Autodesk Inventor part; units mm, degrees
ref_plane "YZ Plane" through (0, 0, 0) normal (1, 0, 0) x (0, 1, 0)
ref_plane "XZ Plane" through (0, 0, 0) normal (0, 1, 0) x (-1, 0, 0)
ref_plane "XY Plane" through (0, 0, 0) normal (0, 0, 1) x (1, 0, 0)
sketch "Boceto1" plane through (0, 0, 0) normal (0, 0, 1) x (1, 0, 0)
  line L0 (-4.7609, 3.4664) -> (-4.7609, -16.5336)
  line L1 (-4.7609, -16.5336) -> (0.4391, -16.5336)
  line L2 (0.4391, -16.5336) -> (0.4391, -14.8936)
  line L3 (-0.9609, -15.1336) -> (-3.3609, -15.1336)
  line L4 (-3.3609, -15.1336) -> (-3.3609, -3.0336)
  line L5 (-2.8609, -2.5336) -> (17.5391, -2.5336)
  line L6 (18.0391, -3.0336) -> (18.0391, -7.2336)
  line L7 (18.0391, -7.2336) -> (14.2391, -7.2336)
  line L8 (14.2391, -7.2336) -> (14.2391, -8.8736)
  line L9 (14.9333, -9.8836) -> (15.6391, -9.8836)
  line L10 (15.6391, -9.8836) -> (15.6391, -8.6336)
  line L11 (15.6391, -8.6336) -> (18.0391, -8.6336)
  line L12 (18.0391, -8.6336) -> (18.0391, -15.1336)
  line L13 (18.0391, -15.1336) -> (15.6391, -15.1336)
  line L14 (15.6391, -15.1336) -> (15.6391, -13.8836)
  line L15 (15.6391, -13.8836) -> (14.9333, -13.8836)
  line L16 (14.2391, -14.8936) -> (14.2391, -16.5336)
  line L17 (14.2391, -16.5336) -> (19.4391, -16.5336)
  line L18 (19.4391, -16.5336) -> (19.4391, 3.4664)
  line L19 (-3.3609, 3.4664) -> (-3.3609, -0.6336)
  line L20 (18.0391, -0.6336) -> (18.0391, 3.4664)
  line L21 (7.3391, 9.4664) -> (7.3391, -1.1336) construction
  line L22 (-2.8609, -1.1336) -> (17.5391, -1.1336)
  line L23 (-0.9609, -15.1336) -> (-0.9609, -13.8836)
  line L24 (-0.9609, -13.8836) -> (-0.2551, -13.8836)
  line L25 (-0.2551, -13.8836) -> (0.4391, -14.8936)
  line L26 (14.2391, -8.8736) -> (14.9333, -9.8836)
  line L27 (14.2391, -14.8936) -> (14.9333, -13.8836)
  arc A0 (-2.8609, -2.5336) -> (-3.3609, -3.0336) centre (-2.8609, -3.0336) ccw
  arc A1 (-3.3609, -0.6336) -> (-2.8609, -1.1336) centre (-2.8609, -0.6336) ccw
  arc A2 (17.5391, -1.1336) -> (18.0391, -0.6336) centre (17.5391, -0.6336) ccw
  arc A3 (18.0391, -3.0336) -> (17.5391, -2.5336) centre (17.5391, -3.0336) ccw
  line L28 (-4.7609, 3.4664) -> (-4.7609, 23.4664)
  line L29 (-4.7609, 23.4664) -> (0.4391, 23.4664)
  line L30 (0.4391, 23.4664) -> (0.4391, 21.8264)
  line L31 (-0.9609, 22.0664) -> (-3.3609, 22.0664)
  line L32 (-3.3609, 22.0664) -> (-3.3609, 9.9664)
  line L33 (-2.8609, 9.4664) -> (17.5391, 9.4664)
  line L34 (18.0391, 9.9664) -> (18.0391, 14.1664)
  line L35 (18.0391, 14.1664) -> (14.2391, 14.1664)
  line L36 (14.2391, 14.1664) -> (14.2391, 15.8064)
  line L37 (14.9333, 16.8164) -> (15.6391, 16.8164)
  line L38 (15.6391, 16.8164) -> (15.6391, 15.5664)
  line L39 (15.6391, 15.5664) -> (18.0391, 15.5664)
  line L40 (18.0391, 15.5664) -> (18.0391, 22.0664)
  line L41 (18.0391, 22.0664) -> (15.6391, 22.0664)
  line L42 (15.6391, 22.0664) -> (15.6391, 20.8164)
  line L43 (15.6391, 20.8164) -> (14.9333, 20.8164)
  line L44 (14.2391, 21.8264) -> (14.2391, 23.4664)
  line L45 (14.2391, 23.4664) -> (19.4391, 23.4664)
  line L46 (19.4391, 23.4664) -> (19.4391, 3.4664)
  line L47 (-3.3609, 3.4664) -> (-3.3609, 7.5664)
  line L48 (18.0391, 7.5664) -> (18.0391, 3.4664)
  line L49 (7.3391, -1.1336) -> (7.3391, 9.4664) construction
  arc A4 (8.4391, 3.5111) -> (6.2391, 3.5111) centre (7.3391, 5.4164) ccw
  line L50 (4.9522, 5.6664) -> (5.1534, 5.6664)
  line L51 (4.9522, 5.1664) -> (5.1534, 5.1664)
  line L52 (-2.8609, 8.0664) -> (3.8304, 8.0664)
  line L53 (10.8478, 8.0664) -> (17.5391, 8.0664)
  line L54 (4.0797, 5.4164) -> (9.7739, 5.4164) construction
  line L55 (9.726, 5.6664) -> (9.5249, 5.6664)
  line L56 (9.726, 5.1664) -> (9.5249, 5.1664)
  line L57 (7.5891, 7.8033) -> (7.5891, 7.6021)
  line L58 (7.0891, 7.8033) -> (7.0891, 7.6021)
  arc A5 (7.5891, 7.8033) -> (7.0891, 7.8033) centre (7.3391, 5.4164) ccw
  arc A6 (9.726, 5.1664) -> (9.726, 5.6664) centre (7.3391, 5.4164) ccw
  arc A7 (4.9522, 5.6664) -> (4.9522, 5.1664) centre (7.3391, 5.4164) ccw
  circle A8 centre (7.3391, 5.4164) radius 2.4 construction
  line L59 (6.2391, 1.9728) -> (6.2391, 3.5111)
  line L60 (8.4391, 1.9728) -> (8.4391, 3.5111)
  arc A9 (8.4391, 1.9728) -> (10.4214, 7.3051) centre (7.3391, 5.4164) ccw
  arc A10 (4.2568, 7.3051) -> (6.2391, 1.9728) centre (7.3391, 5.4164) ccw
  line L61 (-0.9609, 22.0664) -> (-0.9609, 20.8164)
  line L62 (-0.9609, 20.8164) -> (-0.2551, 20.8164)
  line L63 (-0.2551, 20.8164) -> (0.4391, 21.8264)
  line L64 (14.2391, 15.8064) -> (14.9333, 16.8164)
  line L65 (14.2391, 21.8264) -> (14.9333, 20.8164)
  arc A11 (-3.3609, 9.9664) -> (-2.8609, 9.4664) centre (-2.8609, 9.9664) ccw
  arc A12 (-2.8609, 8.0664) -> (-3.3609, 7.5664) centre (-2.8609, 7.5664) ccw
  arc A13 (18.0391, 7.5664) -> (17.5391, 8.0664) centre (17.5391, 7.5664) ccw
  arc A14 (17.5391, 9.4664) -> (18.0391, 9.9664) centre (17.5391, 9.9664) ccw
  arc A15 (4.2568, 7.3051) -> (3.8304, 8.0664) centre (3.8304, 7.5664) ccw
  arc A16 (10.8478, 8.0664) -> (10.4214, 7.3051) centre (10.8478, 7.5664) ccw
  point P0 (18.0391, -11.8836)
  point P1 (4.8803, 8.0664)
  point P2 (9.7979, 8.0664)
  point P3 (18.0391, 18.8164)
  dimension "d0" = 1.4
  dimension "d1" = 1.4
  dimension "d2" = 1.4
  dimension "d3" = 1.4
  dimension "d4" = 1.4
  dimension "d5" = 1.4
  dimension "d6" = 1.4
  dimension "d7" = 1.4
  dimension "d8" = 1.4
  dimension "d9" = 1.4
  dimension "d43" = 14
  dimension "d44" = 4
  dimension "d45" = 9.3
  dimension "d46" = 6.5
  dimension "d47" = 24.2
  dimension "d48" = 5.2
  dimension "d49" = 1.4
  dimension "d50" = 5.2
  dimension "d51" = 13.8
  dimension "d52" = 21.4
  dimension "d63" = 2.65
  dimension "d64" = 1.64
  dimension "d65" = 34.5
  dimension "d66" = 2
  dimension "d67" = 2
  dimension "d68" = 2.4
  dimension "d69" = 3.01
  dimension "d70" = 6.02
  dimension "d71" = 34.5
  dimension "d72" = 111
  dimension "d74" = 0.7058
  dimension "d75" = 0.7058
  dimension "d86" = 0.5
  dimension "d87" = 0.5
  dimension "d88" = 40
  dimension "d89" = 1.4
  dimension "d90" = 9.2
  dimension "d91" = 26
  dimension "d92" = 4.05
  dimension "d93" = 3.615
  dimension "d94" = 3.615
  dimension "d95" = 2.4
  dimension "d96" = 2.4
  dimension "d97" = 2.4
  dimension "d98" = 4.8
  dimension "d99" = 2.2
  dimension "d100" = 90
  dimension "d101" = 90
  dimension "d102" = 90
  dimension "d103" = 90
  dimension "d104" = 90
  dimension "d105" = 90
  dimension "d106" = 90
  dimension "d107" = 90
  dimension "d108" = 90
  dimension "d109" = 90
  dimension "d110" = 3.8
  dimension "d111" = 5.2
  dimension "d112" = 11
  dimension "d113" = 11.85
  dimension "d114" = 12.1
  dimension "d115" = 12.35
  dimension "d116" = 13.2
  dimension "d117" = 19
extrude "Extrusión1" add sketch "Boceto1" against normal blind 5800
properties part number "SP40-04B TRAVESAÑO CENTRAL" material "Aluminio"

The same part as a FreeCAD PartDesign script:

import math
import FreeCAD as App
import Part
import Sketcher
from FreeCAD import Vector
Q = App.Units.Quantity

doc = App.newDocument("Part")
body = doc.addObject("PartDesign::Body", "Body")

sketch1 = body.newObject("Sketcher::SketchObject", "Sketch")
sketch1.AttachmentSupport = (doc.getObject("XY_Plane"), [""])
sketch1.MapMode = "FlatFace"
sketch1.addGeometry([
    Part.LineSegment(Vector(-4.7609, 23.4664, 0), Vector(-4.7609, -16.5336, 0)),
    Part.LineSegment(Vector(-4.7609, -16.5336, 0), Vector(0.4391, -16.5336, 0)),
    Part.LineSegment(Vector(0.4391, -16.5336, 0), Vector(0.4391, -14.8936, 0)),
    Part.LineSegment(Vector(0.4391, -14.8936, 0), Vector(-0.2551, -13.8836, 0)),
    Part.LineSegment(Vector(-0.2551, -13.8836, 0), Vector(-0.9609, -13.8836, 0)),
    Part.LineSegment(Vector(-0.9609, -13.8836, 0), Vector(-0.9609, -15.1336, 0)),
    Part.LineSegment(Vector(-0.9609, -15.1336, 0), Vector(-3.3609, -15.1336, 0)),
    Part.LineSegment(Vector(-3.3609, -15.1336, 0), Vector(-3.3609, -3.0336, 0)),
    Part.ArcOfCircle(Part.Circle(Vector(-2.8609, -3.0336, 0), Vector(0, 0, 1), 0.5), math.radians(90), math.radians(180)),
    Part.LineSegment(Vector(-2.8609, -2.5336, 0), Vector(17.5391, -2.5336, 0)),
    Part.ArcOfCircle(Part.Circle(Vector(17.5391, -3.0336, 0), Vector(0, 0, 1), 0.5), math.radians(0), math.radians(90)),
    Part.LineSegment(Vector(18.0391, -3.0336, 0), Vector(18.0391, -7.2336, 0)),
    Part.LineSegment(Vector(18.0391, -7.2336, 0), Vector(14.2391, -7.2336, 0)),
    Part.LineSegment(Vector(14.2391, -7.2336, 0), Vector(14.2391, -8.8736, 0)),
    Part.LineSegment(Vector(14.2391, -8.8736, 0), Vector(14.9333, -9.8836, 0)),
    Part.LineSegment(Vector(14.9333, -9.8836, 0), Vector(15.6391, -9.8836, 0)),
    Part.LineSegment(Vector(15.6391, -9.8836, 0), Vector(15.6391, -8.6336, 0)),
    Part.LineSegment(Vector(15.6391, -8.6336, 0), Vector(18.0391, -8.6336, 0)),
    Part.LineSegment(Vector(18.0391, -8.6336, 0), Vector(18.0391, -15.1336, 0)),
    Part.LineSegment(Vector(18.0391, -15.1336, 0), Vector(15.6391, -15.1336, 0)),
    Part.LineSegment(Vector(15.6391, -15.1336, 0), Vector(15.6391, -13.8836, 0)),
    Part.LineSegment(Vector(15.6391, -13.8836, 0), Vector(14.9333, -13.8836, 0)),
    Part.LineSegment(Vector(14.9333, -13.8836, 0), Vector(14.2391, -14.8936, 0)),
    Part.LineSegment(Vector(14.2391, -14.8936, 0), Vector(14.2391, -16.5336, 0)),
    Part.LineSegment(Vector(14.2391, -16.5336, 0), Vector(19.4391, -16.5336, 0)),
    Part.LineSegment(Vector(19.4391, -16.5336, 0), Vector(19.4391, 23.4664, 0)),
    Part.LineSegment(Vector(19.4391, 23.4664, 0), Vector(14.2391, 23.4664, 0)),
    Part.LineSegment(Vector(14.2391, 23.4664, 0), Vector(14.2391, 21.8264, 0)),
    Part.LineSegment(Vector(14.2391, 21.8264, 0), Vector(14.9333, 20.8164, 0)),
    Part.LineSegment(Vector(14.9333, 20.8164, 0), Vector(15.6391, 20.8164, 0)),
    Part.LineSegment(Vector(15.6391, 20.8164, 0), Vector(15.6391, 22.0664, 0)),
    Part.LineSegment(Vector(15.6391, 22.0664, 0), Vector(18.0391, 22.0664, 0)),
    Part.LineSegment(Vector(18.0391, 22.0664, 0), Vector(18.0391, 15.5664, 0)),
    Part.LineSegment(Vector(18.0391, 15.5664, 0), Vector(15.6391, 15.5664, 0)),
    Part.LineSegment(Vector(15.6391, 15.5664, 0), Vector(15.6391, 16.8164, 0)),
    Part.LineSegment(Vector(15.6391, 16.8164, 0), Vector(14.9333, 16.8164, 0)),
    Part.LineSegment(Vector(14.9333, 16.8164, 0), Vector(14.2391, 15.8064, 0)),
    Part.LineSegment(Vector(14.2391, 15.8064, 0), Vector(14.2391, 14.1664, 0)),
    Part.LineSegment(Vector(14.2391, 14.1664, 0), Vector(18.0391, 14.1664, 0)),
    Part.LineSegment(Vector(18.0391, 14.1664, 0), Vector(18.0391, 9.9664, 0)),
    Part.ArcOfCircle(Part.Circle(Vector(17.5391, 9.9664, 0), Vector(0, 0, 1), 0.5), math.radians(-90), math.radians(0)),
    Part.LineSegment(Vector(17.5391, 9.4664, 0), Vector(-2.8609, 9.4664, 0)),
    Part.ArcOfCircle(Part.Circle(Vector(-2.8609, 9.9664, 0), Vector(0, 0, 1), 0.5), math.radians(180), math.radians(270)),
    Part.LineSegment(Vector(-3.3609, 9.9664, 0), Vector(-3.3609, 22.0664, 0)),
    Part.LineSegment(Vector(-3.3609, 22.0664, 0), Vector(-0.9609, 22.0664, 0)),
    Part.LineSegment(Vector(-0.9609, 22.0664, 0), Vector(-0.9609, 20.8164, 0)),
    Part.LineSegment(Vector(-0.9609, 20.8164, 0), Vector(-0.2551, 20.8164, 0)),
    Part.LineSegment(Vector(-0.2551, 20.8164, 0), Vector(0.4391, 21.8264, 0)),
    Part.LineSegment(Vector(0.4391, 21.8264, 0), Vector(0.4391, 23.4664, 0)),
    Part.LineSegment(Vector(0.4391, 23.4664, 0), Vector(-4.7609, 23.4664, 0)),
    Part.LineSegment(Vector(-3.3609, -0.6336, 0), Vector(-3.3609, 7.5664, 0)),
    Part.ArcOfCircle(Part.Circle(Vector(-2.8609, 7.5664, 0), Vector(0, 0, 1), 0.5), math.radians(90), math.radians(180)),
    Part.LineSegment(Vector(-2.8609, 8.0664, 0), Vector(3.8304, 8.0664, 0)),
    Part.ArcOfCircle(Part.Circle(Vector(3.8304, 7.5664, 0), Vector(0, 0, 1), 0.500095), math.radians(-31.50017), math.radians(90)),
    Part.ArcOfCircle(Part.Circle(Vector(7.3391, 5.4164, 0), Vector(0, 0, 1), 3.615022), math.radians(148.501836), math.radians(252.284794)),
    Part.LineSegment(Vector(6.2391, 1.9728, 0), Vector(6.2391, 3.5111, 0)),
    Part.ArcOfCircle(Part.Circle(Vector(7.3391, 5.4164, 0), Vector(0, 0, 1), 2.200038), math.radians(-173.474875), math.radians(-119.999426)),
    Part.LineSegment(Vector(5.1534, 5.1664, 0), Vector(4.9522, 5.1664, 0)),
    Part.ArcOfCircle(Part.Circle(Vector(7.3391, 5.4164, 0), Vector(0, 0, 1), 2.399957), math.radians(174.020735), math.radians(185.979265)),
    Part.LineSegment(Vector(4.9522, 5.6664, 0), Vector(5.1534, 5.6664, 0)),
    Part.ArcOfCircle(Part.Circle(Vector(7.3391, 5.4164, 0), Vector(0, 0, 1), 2.200038), math.radians(96.525125), math.radians(173.474875)),
    Part.LineSegment(Vector(7.0891, 7.6021, 0), Vector(7.0891, 7.8033, 0)),
    Part.ArcOfCircle(Part.Circle(Vector(7.3391, 5.4164, 0), Vector(0, 0, 1), 2.399957), math.radians(84.020735), math.radians(95.979265)),
    Part.LineSegment(Vector(7.5891, 7.8033, 0), Vector(7.5891, 7.6021, 0)),
    Part.ArcOfCircle(Part.Circle(Vector(7.3391, 5.4164, 0), Vector(0, 0, 1), 2.200038), math.radians(6.524829), math.radians(83.474875)),
    Part.LineSegment(Vector(9.5249, 5.6664, 0), Vector(9.726, 5.6664, 0)),
    Part.ArcOfCircle(Part.Circle(Vector(7.3391, 5.4164, 0), Vector(0, 0, 1), 2.399957), math.radians(-5.979265), math.radians(5.979265)),
    Part.LineSegment(Vector(9.726, 5.1664, 0), Vector(9.5249, 5.1664, 0)),
    Part.ArcOfCircle(Part.Circle(Vector(7.3391, 5.4164, 0), Vector(0, 0, 1), 2.200038), math.radians(-60.000574), math.radians(-6.524829)),
    Part.LineSegment(Vector(8.4391, 3.5111, 0), Vector(8.4391, 1.9728, 0)),
    Part.ArcOfCircle(Part.Circle(Vector(7.3391, 5.4164, 0), Vector(0, 0, 1), 3.614936), math.radians(-72.284794), math.radians(31.498164)),
    Part.ArcOfCircle(Part.Circle(Vector(10.8478, 7.5664, 0), Vector(0, 0, 1), 0.5), math.radians(90), math.radians(211.50017)),
    Part.LineSegment(Vector(10.8478, 8.0664, 0), Vector(17.5391, 8.0664, 0)),
    Part.ArcOfCircle(Part.Circle(Vector(17.5391, 7.5664, 0), Vector(0, 0, 1), 0.5), math.radians(0), math.radians(90)),
    Part.LineSegment(Vector(18.0391, 7.5664, 0), Vector(18.0391, -0.6336, 0)),
    Part.ArcOfCircle(Part.Circle(Vector(17.5391, -0.6336, 0), Vector(0, 0, 1), 0.5), math.radians(-90), math.radians(0)),
    Part.LineSegment(Vector(17.5391, -1.1336, 0), Vector(-2.8609, -1.1336, 0)),
    Part.ArcOfCircle(Part.Circle(Vector(-2.8609, -0.6336, 0), Vector(0, 0, 1), 0.5), math.radians(180), math.radians(270)),
], False)
sketch1.addConstraint([
    Sketcher.Constraint("Coincident", 0, 2, 1, 1),
    Sketcher.Constraint("Coincident", 1, 2, 2, 1),
    Sketcher.Constraint("Coincident", 2, 2, 3, 1),
    Sketcher.Constraint("Coincident", 3, 2, 4, 1),
    Sketcher.Constraint("Coincident", 4, 2, 5, 1),
    Sketcher.Constraint("Coincident", 5, 2, 6, 1),
    Sketcher.Constraint("Coincident", 6, 2, 7, 1),
    Sketcher.Constraint("Tangent", 7, 2, 8, 2),
    Sketcher.Constraint("Tangent", 8, 1, 9, 1),
    Sketcher.Constraint("Tangent", 9, 2, 10, 2),
    Sketcher.Constraint("Tangent", 10, 1, 11, 1),
    Sketcher.Constraint("Coincident", 11, 2, 12, 1),
    Sketcher.Constraint("Coincident", 12, 2, 13, 1),
    Sketcher.Constraint("Coincident", 13, 2, 14, 1),
    Sketcher.Constraint("Coincident", 14, 2, 15, 1),
    Sketcher.Constraint("Coincident", 15, 2, 16, 1),
    Sketcher.Constraint("Coincident", 16, 2, 17, 1),
    Sketcher.Constraint("Coincident", 17, 2, 18, 1),
    Sketcher.Constraint("Coincident", 18, 2, 19, 1),
    Sketcher.Constraint("Coincident", 19, 2, 20, 1),
    Sketcher.Constraint("Coincident", 20, 2, 21, 1),
    Sketcher.Constraint("Coincident", 21, 2, 22, 1),
    Sketcher.Constraint("Coincident", 22, 2, 23, 1),
    Sketcher.Constraint("Coincident", 23, 2, 24, 1),
    Sketcher.Constraint("Coincident", 24, 2, 25, 1),
    Sketcher.Constraint("Coincident", 25, 2, 26, 1),
    Sketcher.Constraint("Coincident", 26, 2, 27, 1),
    Sketcher.Constraint("Coincident", 27, 2, 28, 1),
    Sketcher.Constraint("Coincident", 28, 2, 29, 1),
    Sketcher.Constraint("Coincident", 29, 2, 30, 1),
    Sketcher.Constraint("Coincident", 30, 2, 31, 1),
    Sketcher.Constraint("Coincident", 31, 2, 32, 1),
    Sketcher.Constraint("Coincident", 32, 2, 33, 1),
    Sketcher.Constraint("Coincident", 33, 2, 34, 1),
    Sketcher.Constraint("Coincident", 34, 2, 35, 1),
    Sketcher.Constraint("Coincident", 35, 2, 36, 1),
    Sketcher.Constraint("Coincident", 36, 2, 37, 1),
    Sketcher.Constraint("Coincident", 37, 2, 38, 1),
    Sketcher.Constraint("Coincident", 38, 2, 39, 1),
    Sketcher.Constraint("Tangent", 39, 2, 40, 2),
    Sketcher.Constraint("Tangent", 40, 1, 41, 1),
    Sketcher.Constraint("Tangent", 41, 2, 42, 2),
    Sketcher.Constraint("Tangent", 42, 1, 43, 1),
    Sketcher.Constraint("Coincident", 43, 2, 44, 1),
    Sketcher.Constraint("Coincident", 44, 2, 45, 1),
    Sketcher.Constraint("Coincident", 45, 2, 46, 1),
    Sketcher.Constraint("Coincident", 46, 2, 47, 1),
    Sketcher.Constraint("Coincident", 47, 2, 48, 1),
    Sketcher.Constraint("Coincident", 48, 2, 49, 1),
    Sketcher.Constraint("Coincident", 49, 2, 0, 1),
    Sketcher.Constraint("Tangent", 50, 2, 51, 2),
    Sketcher.Constraint("Tangent", 51, 1, 52, 1),
    Sketcher.Constraint("Tangent", 52, 2, 53, 2),
    Sketcher.Constraint("Tangent", 53, 1, 54, 1),
    Sketcher.Constraint("Coincident", 54, 2, 55, 1),
    Sketcher.Constraint("Coincident", 55, 2, 56, 2),
    Sketcher.Constraint("Coincident", 56, 1, 57, 1),
    Sketcher.Constraint("Coincident", 57, 2, 58, 2),
    Sketcher.Constraint("Coincident", 58, 1, 59, 1),
    Sketcher.Constraint("Coincident", 59, 2, 60, 2),
    Sketcher.Constraint("Coincident", 60, 1, 61, 1),
    Sketcher.Constraint("Coincident", 61, 2, 62, 2),
    Sketcher.Constraint("Coincident", 62, 1, 63, 1),
    Sketcher.Constraint("Coincident", 63, 2, 64, 2),
    Sketcher.Constraint("Coincident", 64, 1, 65, 1),
    Sketcher.Constraint("Coincident", 65, 2, 66, 2),
    Sketcher.Constraint("Coincident", 66, 1, 67, 1),
    Sketcher.Constraint("Coincident", 67, 2, 68, 2),
    Sketcher.Constraint("Coincident", 68, 1, 69, 1),
    Sketcher.Constraint("Coincident", 69, 2, 70, 1),
    Sketcher.Constraint("Tangent", 70, 2, 71, 2),
    Sketcher.Constraint("Tangent", 71, 1, 72, 1),
    Sketcher.Constraint("Tangent", 72, 2, 73, 2),
    Sketcher.Constraint("Tangent", 73, 1, 74, 1),
    Sketcher.Constraint("Tangent", 74, 2, 75, 2),
    Sketcher.Constraint("Tangent", 75, 1, 76, 1),
    Sketcher.Constraint("Tangent", 76, 2, 77, 2),
    Sketcher.Constraint("Tangent", 77, 1, 50, 1),
    Sketcher.Constraint("Vertical", 0),
    Sketcher.Constraint("Horizontal", 1),
    Sketcher.Constraint("Vertical", 2),
    Sketcher.Constraint("Horizontal", 4),
    Sketcher.Constraint("Vertical", 5),
    Sketcher.Constraint("Horizontal", 6),
    Sketcher.Constraint("Vertical", 7),
    Sketcher.Constraint("Horizontal", 9),
    Sketcher.Constraint("Vertical", 11),
    Sketcher.Constraint("Horizontal", 12),
    Sketcher.Constraint("Vertical", 13),
    Sketcher.Constraint("Horizontal", 15),
    Sketcher.Constraint("Vertical", 16),
    Sketcher.Constraint("Horizontal", 17),
    Sketcher.Constraint("Vertical", 18),
    Sketcher.Constraint("Horizontal", 19),
    Sketcher.Constraint("Vertical", 20),
    Sketcher.Constraint("Horizontal", 21),
    Sketcher.Constraint("Vertical", 23),
    Sketcher.Constraint("Horizontal", 24),
    Sketcher.Constraint("Vertical", 25),
    Sketcher.Constraint("Horizontal", 26),
    Sketcher.Constraint("Vertical", 27),
    Sketcher.Constraint("Horizontal", 29),
    Sketcher.Constraint("Vertical", 30),
    Sketcher.Constraint("Horizontal", 31),
    Sketcher.Constraint("Vertical", 32),
    Sketcher.Constraint("Horizontal", 33),
    Sketcher.Constraint("Vertical", 34),
    Sketcher.Constraint("Horizontal", 35),
    Sketcher.Constraint("Vertical", 37),
    Sketcher.Constraint("Horizontal", 38),
    Sketcher.Constraint("Vertical", 39),
    Sketcher.Constraint("Horizontal", 41),
    Sketcher.Constraint("Vertical", 43),
    Sketcher.Constraint("Horizontal", 44),
    Sketcher.Constraint("Vertical", 45),
    Sketcher.Constraint("Horizontal", 46),
    Sketcher.Constraint("Vertical", 48),
    Sketcher.Constraint("Horizontal", 49),
    Sketcher.Constraint("Vertical", 50),
    Sketcher.Constraint("Horizontal", 52),
    Sketcher.Constraint("Vertical", 55),
    Sketcher.Constraint("Horizontal", 57),
    Sketcher.Constraint("Horizontal", 59),
    Sketcher.Constraint("Vertical", 61),
    Sketcher.Constraint("Vertical", 63),
    Sketcher.Constraint("Horizontal", 65),
    Sketcher.Constraint("Horizontal", 67),
    Sketcher.Constraint("Vertical", 69),
    Sketcher.Constraint("Horizontal", 72),
    Sketcher.Constraint("Vertical", 74),
    Sketcher.Constraint("Horizontal", 76),
    Sketcher.Constraint("Coincident", 56, 3, 54, 3),
    Sketcher.Constraint("Coincident", 58, 3, 54, 3),
    Sketcher.Constraint("Coincident", 60, 3, 54, 3),
    Sketcher.Constraint("Coincident", 62, 3, 54, 3),
    Sketcher.Constraint("Coincident", 64, 3, 54, 3),
    Sketcher.Constraint("Coincident", 66, 3, 54, 3),
    Sketcher.Constraint("Coincident", 68, 3, 54, 3),
    Sketcher.Constraint("Coincident", 70, 3, 54, 3),
    Sketcher.Constraint("Equal", 8, 10),
    Sketcher.Constraint("Equal", 10, 40),
    Sketcher.Constraint("Equal", 40, 42),
    Sketcher.Constraint("Equal", 42, 51),
    Sketcher.Constraint("Equal", 51, 53),
    Sketcher.Constraint("Equal", 56, 60),
    Sketcher.Constraint("Equal", 58, 62),
    Sketcher.Constraint("Equal", 60, 64),
    Sketcher.Constraint("Equal", 62, 66),
    Sketcher.Constraint("Equal", 64, 68),
    Sketcher.Constraint("Equal", 54, 70),
    Sketcher.Constraint("Equal", 53, 71),
    Sketcher.Constraint("Equal", 71, 73),
    Sketcher.Constraint("Equal", 73, 75),
    Sketcher.Constraint("Equal", 75, 77),
    Sketcher.Constraint("Parallel", 3, 14),
    Sketcher.Constraint("Parallel", 14, 28),
    Sketcher.Constraint("Parallel", 22, 36),
    Sketcher.Constraint("Parallel", 36, 47),
    Sketcher.Constraint("Horizontal", 53, 3, 71, 3),
    Sketcher.Constraint("Horizontal", 6, 2, 18, 2),
    Sketcher.Constraint("Horizontal", 4, 2, 20, 2),
    Sketcher.Constraint("Horizontal", 2, 2, 22, 2),
    Sketcher.Constraint("Horizontal", 1, 2, 23, 2),
    Sketcher.Constraint("Horizontal", 31, 2, 43, 2),
    Sketcher.Constraint("Horizontal", 29, 2, 45, 2),
    Sketcher.Constraint("Horizontal", 27, 2, 47, 2),
    Sketcher.Constraint("Horizontal", 26, 2, 48, 2),
    Sketcher.Constraint("Horizontal", 61, 2, 62, 1),
    Sketcher.Constraint("Horizontal", 59, 2, 64, 1),
    Sketcher.Constraint("Horizontal", 57, 2, 66, 1),
    Sketcher.Constraint("Horizontal", 55, 2, 68, 1),
    Sketcher.Constraint("Vertical", 10, 3, 40, 3),
    Sketcher.Constraint("Vertical", 8, 3, 42, 3),
    Sketcher.Constraint("Vertical", 42, 3, 51, 3),
    Sketcher.Constraint("Vertical", 40, 3, 73, 3),
    Sketcher.Constraint("Vertical", 11, 2, 17, 2),
    Sketcher.Constraint("Vertical", 16, 2, 19, 2),
    Sketcher.Constraint("Vertical", 14, 2, 21, 2),
    Sketcher.Constraint("Vertical", 13, 2, 22, 2),
    Sketcher.Constraint("Vertical", 23, 2, 26, 2),
    Sketcher.Constraint("Vertical", 21, 2, 28, 2),
    Sketcher.Constraint("Vertical", 20, 2, 29, 2),
    Sketcher.Constraint("Vertical", 18, 2, 31, 2),
    Sketcher.Constraint("Vertical", 30, 2, 33, 2),
    Sketcher.Constraint("Vertical", 28, 2, 35, 2),
    Sketcher.Constraint("Vertical", 27, 2, 36, 2),
    Sketcher.Constraint("Vertical", 5, 2, 44, 2),
    Sketcher.Constraint("Vertical", 3, 2, 46, 2),
    Sketcher.Constraint("Vertical", 2, 2, 47, 2),
    Sketcher.Constraint("Vertical", 57, 2, 58, 1),
    Sketcher.Constraint("Equal", 4, 15),
    Sketcher.Constraint("Equal", 6, 17),
    Sketcher.Constraint("Equal", 1, 24),
    Sketcher.Constraint("Equal", 52, 72),
    Sketcher.Constraint("Equal", 2, 13),
    Sketcher.Constraint("Equal", 5, 16),
    Sketcher.Constraint("Equal", 23, 27),
    Sketcher.Constraint("Equal", 20, 30),
    Sketcher.Constraint("Equal", 18, 32),
    Sketcher.Constraint("Equal", 30, 34),
    Sketcher.Constraint("Equal", 27, 37),
    Sketcher.Constraint("Equal", 11, 39),
    Sketcher.Constraint("Equal", 67, 61),
    Sketcher.Constraint("Radius", 8, Q("0.5 mm")),
    Sketcher.Constraint("Radius", 56, Q("2.2 mm")),
    Sketcher.Constraint("Radius", 58, Q("2.4 mm")),
    Sketcher.Constraint("DistanceY", 0, 2, 0, 1, Q("40 mm")),
    Sketcher.Constraint("DistanceX", 1, 1, 1, 2, Q("5.2 mm")),
    Sketcher.Constraint("DistanceX", 6, 2, 6, 1, Q("2.4 mm")),
    Sketcher.Constraint("DistanceX", 12, 2, 12, 1, Q("3.8 mm")),
    Sketcher.Constraint("DistanceY", 7, 1, 7, 2, Q("12.1 mm")),
    Sketcher.Constraint("DistanceY", 18, 2, 18, 1, Q("6.5 mm")),
    Sketcher.Constraint("Radius", 54, Q("3.615 mm")),
    Sketcher.Constraint("DistanceY", 2, 1, 2, 2, Q("1.64 mm")),
    Sketcher.Constraint("DistanceX", 4, 2, 4, 1, Q("0.7058 mm")),
    Sketcher.Constraint("DistanceX", 9, 1, 9, 2, Q("20.4 mm")),
    Sketcher.Constraint("DistanceY", 11, 2, 11, 1, Q("4.2 mm")),
    Sketcher.Constraint("DistanceY", 50, 1, 50, 2, Q("8.2 mm")),
    Sketcher.Constraint("DistanceY", 5, 2, 5, 1, Q("1.25 mm")),
    Sketcher.Constraint("DistanceX", 52, 1, 52, 2, Q("6.6913 mm")),
    Sketcher.Constraint("DistanceY", 55, 1, 55, 2, Q("1.5383 mm")),
    Sketcher.Constraint("DistanceX", 8, 3, -1, 1, Q("2.861 mm")),
    Sketcher.Constraint("DistanceY", -1, 1, 53, 1, Q("7.305 mm")),
    Sketcher.Constraint("DistanceX", -1, 1, 60, 1, Q("7.089 mm")),
    Sketcher.Constraint("DistanceY", 8, 3, -1, 1, Q("3.0336 mm")),
])
pad1 = body.newObject("PartDesign::Pad", "Pad")
pad1.Profile = sketch1
pad1.Length = 5800
pad1.Reversed = True

doc.recompute()
